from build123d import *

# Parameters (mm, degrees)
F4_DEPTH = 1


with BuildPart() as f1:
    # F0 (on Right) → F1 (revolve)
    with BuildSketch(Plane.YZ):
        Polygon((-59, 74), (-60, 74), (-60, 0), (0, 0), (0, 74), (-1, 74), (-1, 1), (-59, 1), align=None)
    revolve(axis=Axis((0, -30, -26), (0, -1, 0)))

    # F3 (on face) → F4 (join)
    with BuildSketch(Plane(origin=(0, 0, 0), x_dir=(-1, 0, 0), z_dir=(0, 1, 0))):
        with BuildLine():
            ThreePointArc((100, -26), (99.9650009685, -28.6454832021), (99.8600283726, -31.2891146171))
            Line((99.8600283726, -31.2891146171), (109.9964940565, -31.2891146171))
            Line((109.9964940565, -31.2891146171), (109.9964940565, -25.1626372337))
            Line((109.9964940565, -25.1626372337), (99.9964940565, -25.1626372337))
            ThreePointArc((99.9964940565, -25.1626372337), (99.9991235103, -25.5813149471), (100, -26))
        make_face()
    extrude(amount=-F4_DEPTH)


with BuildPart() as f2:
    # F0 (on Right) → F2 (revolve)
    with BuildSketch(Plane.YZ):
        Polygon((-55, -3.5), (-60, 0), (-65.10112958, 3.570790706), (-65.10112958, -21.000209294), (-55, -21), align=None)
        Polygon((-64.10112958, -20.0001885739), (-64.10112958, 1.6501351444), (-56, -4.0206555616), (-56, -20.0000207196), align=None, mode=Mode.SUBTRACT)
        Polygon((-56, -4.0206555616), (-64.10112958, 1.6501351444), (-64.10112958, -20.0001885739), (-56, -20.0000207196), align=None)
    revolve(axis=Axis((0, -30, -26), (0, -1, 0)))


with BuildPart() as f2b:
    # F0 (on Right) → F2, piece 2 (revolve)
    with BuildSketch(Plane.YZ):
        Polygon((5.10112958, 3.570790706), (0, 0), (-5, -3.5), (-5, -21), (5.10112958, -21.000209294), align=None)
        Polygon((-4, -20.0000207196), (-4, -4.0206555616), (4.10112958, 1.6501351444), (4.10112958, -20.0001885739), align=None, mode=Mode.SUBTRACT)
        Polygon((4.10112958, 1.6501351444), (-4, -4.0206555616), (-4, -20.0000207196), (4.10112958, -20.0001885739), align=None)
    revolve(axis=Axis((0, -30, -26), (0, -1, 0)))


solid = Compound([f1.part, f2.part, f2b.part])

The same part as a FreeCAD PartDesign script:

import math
import FreeCAD as App
import Part
import Sketcher

V = App.Vector
Q = App.Units.Quantity

doc = App.newDocument("Part")
body = doc.addObject("PartDesign::Body", "Body")

sketch1 = doc.addObject("Sketcher::SketchObject", "Sketch")
body.addObject(sketch1)
sketch1.AttachmentSupport = (doc.YZ_Plane, [""])
sketch1.MapMode = "FlatFace"
sketch1.addGeometry([
    Part.LineSegment(V(-59, 74, 0), V(-60, 74, 0)),
    Part.LineSegment(V(-60, 74, 0), V(-60, 0, 0)),
    Part.LineSegment(V(-60, 0, 0), V(0, 0, 0)),
    Part.LineSegment(V(0, 0, 0), V(0, 74, 0)),
    Part.LineSegment(V(0, 74, 0), V(-1, 74, 0)),
    Part.LineSegment(V(-1, 74, 0), V(-1, 1, 0)),
    Part.LineSegment(V(-1, 1, 0), V(-59, 1, 0)),
    Part.LineSegment(V(-59, 1, 0), V(-59, 74, 0)),
], False)
sketch1.addGeometry(Part.LineSegment(V(0, -26, 0), V(-60, -26, 0)), True)
sketch1.addConstraint([
    Sketcher.Constraint("Coincident", 0, 2, 1, 1),
    Sketcher.Constraint("Coincident", 1, 2, 2, 1),
    Sketcher.Constraint("Coincident", 2, 2, 3, 1),
    Sketcher.Constraint("Coincident", 3, 2, 4, 1),
    Sketcher.Constraint("Coincident", 4, 2, 5, 1),
    Sketcher.Constraint("Coincident", 5, 2, 6, 1),
    Sketcher.Constraint("Coincident", 6, 2, 7, 1),
    Sketcher.Constraint("Coincident", 7, 2, 0, 1),
    Sketcher.Constraint("Horizontal", 0),
    Sketcher.Constraint("Vertical", 1),
    Sketcher.Constraint("Horizontal", 2),
    Sketcher.Constraint("Vertical", 3),
    Sketcher.Constraint("Horizontal", 4),
    Sketcher.Constraint("Vertical", 5),
    Sketcher.Constraint("Horizontal", 6),
    Sketcher.Constraint("Vertical", 7),
    Sketcher.Constraint("Horizontal", 8),
    Sketcher.Constraint("Coincident", 2, 2, -1, 1),
    Sketcher.Constraint("PointOnObject", 8, 1, -2),
    Sketcher.Constraint("Horizontal", 0, 2, 3, 2),
    Sketcher.Constraint("Vertical", 1, 2, 8, 2),
    Sketcher.Constraint("Equal", 0, 4),
    Sketcher.Constraint("DistanceX", 0, 2, 0, 1, Q("1 mm")),
    Sketcher.Constraint("DistanceX", 2, 1, 2, 2, Q("60 mm")),
    Sketcher.Constraint("DistanceY", 1, 2, 1, 1, Q("74 mm")),
    Sketcher.Constraint("DistanceY", 5, 2, 5, 1, Q("73 mm")),
    Sketcher.Constraint("DistanceY", 8, 1, -1, 1, Q("26 mm")),
])
revolution = doc.addObject("PartDesign::Revolution", "Revolution")
body.addObject(revolution)
revolution.Profile = sketch1
revolution.ReferenceAxis = (sketch1, ["Axis0"])
revolution.Angle = 360

sketch2 = doc.addObject("Sketcher::SketchObject", "Sketch001")
body.addObject(sketch2)
sketch2.AttachmentSupport = (doc.XZ_Plane, [""])
sketch2.MapMode = "FlatFace"
sketch2.addGeometry([
    Part.ArcOfCircle(Part.Circle(V(0, -26, 0), V(0, 0, 1), 100), math.radians(180), math.radians(183.03)),
    Part.LineSegment(V(-99.9, -31.3, 0), V(-110, -31.3, 0)),
    Part.LineSegment(V(-110, -31.3, 0), V(-110, -25.2, 0)),
    Part.LineSegment(V(-110, -25.2, 0), V(-100, -25.2, 0)),
    Part.ArcOfCircle(Part.Circle(V(0, -26, 0), V(0, 0, 1), 100), math.radians(179.52), math.radians(180)),
], False)
sketch2.addConstraint([
    Sketcher.Constraint("Coincident", 0, 2, 1, 1),
    Sketcher.Constraint("Coincident", 1, 2, 2, 1),
    Sketcher.Constraint("Coincident", 2, 2, 3, 1),
    Sketcher.Constraint("Coincident", 3, 2, 4, 1),
    Sketcher.Constraint("Tangent", 4, 2, 0, 1),
    Sketcher.Constraint("Horizontal", 1),
    Sketcher.Constraint("Vertical", 2),
    Sketcher.Constraint("Horizontal", 3),
    Sketcher.Constraint("PointOnObject", 0, 3, -2),
    Sketcher.Constraint("Horizontal", 0, 3, 4, 2),
    Sketcher.Constraint("Radius", 0, Q("100 mm")),
    Sketcher.Constraint("DistanceX", 3, 1, 3, 2, Q("10 mm")),
    Sketcher.Constraint("DistanceY", 0, 3, -1, 1, Q("26 mm")),
    Sketcher.Constraint("Radius", 4, Q("99.999997 mm")),
    Sketcher.Constraint("DistanceX", 1, 2, 1, 1, Q("10.136466 mm")),
    Sketcher.Constraint("DistanceY", 2, 1, 2, 2, Q("6.126477 mm")),
])
pad1 = doc.addObject("PartDesign::Pad", "Pad")
body.addObject(pad1)
pad1.Profile = sketch2
pad1.Length = 1
body2 = doc.addObject("PartDesign::Body", "Body001")

sketch3 = doc.addObject("Sketcher::SketchObject", "Sketch002")
body2.addObject(sketch3)
sketch3.AttachmentSupport = (doc.getObject("YZ_Plane001"), [""])
sketch3.MapMode = "FlatFace"
sketch3.addGeometry([
    Part.LineSegment(V(-55, -4, 0), V(-65, 4, 0)),
    Part.LineSegment(V(-65, 4, 0), V(-65, -21, 0)),
    Part.LineSegment(V(-65, -21, 0), V(-55, -21, 0)),
    Part.LineSegment(V(-55, -21, 0), V(-55, -4, 0)),
], False)
sketch3.addGeometry(Part.LineSegment(V(-55, -26, 0), V(-65, -26, 0)), True)
sketch3.addConstraint([
    Sketcher.Constraint("Coincident", 0, 2, 1, 1),
    Sketcher.Constraint("Coincident", 1, 2, 2, 1),
    Sketcher.Constraint("Coincident", 2, 2, 3, 1),
    Sketcher.Constraint("Coincident", 3, 2, 0, 1),
    Sketcher.Constraint("Vertical", 1),
    Sketcher.Constraint("Vertical", 3),
    Sketcher.Constraint("Horizontal", 4),
    Sketcher.Constraint("Vertical", 3, 2, 4, 1),
    Sketcher.Constraint("Vertical", 1, 2, 4, 2),
    Sketcher.Constraint("DistanceY", 3, 1, 3, 2, Q("17.5 mm")),
    Sketcher.Constraint("DistanceX", 2, 2, -1, 1, Q("55 mm")),
    Sketcher.Constraint("DistanceY", 2, 2, -1, 1, Q("21 mm")),
    Sketcher.Constraint("DistanceY", 4, 1, -1, 1, Q("26 mm")),
    Sketcher.Constraint("Distance", 0, Q("12.33 mm")),
    Sketcher.Constraint("DistanceY", 1, 2, 1, 1, Q("24.571 mm")),
    Sketcher.Constraint("DistanceX", 4, 2, 4, 1, Q("10.10113 mm")),
])
revolution2 = doc.addObject("PartDesign::Revolution", "Revolution001")
body2.addObject(revolution2)
revolution2.Profile = sketch3
revolution2.ReferenceAxis = (sketch3, ["Axis0"])
revolution2.Angle = 360
body3 = doc.addObject("PartDesign::Body", "Body002")

sketch4 = doc.addObject("Sketcher::SketchObject", "Sketch003")
body3.addObject(sketch4)
sketch4.AttachmentSupport = (doc.getObject("YZ_Plane002"), [""])
sketch4.MapMode = "FlatFace"
sketch4.addGeometry([
    Part.LineSegment(V(5, 4, 0), V(-5, -4, 0)),
    Part.LineSegment(V(-5, -4, 0), V(-5, -21, 0)),
    Part.LineSegment(V(-5, -21, 0), V(5, -21, 0)),
    Part.LineSegment(V(5, -21, 0), V(5, 4, 0)),
], False)
sketch4.addGeometry(Part.LineSegment(V(5, -26, 0), V(-5, -26, 0)), True)
sketch4.addConstraint([
    Sketcher.Constraint("Coincident", 0, 2, 1, 1),
    Sketcher.Constraint("Coincident", 1, 2, 2, 1),
    Sketcher.Constraint("Coincident", 2, 2, 3, 1),
    Sketcher.Constraint("Coincident", 3, 2, 0, 1),
    Sketcher.Constraint("Vertical", 1),
    Sketcher.Constraint("Vertical", 3),
    Sketcher.Constraint("Horizontal", 4),
    Sketcher.Constraint("Vertical", 3, 2, 4, 1),
    Sketcher.Constraint("Vertical", 1, 2, 4, 2),
    Sketcher.Constraint("DistanceY", 1, 2, 1, 1, Q("17.5 mm")),
    Sketcher.Constraint("DistanceX", 0, 2, -1, 1, Q("5 mm")),
    Sketcher.Constraint("DistanceY", 1, 2, -1, 1, Q("21 mm")),
    Sketcher.Constraint("DistanceY", 4, 1, -1, 1, Q("26 mm")),
    Sketcher.Constraint("Distance", 0, Q("12.33 mm")),
    Sketcher.Constraint("DistanceY", 3, 1, 3, 2, Q("24.571 mm")),
    Sketcher.Constraint("DistanceX", 4, 2, 4, 1, Q("10.10113 mm")),
])
revolution3 = doc.addObject("PartDesign::Revolution", "Revolution002")
body3.addObject(revolution3)
revolution3.Profile = sketch4
revolution3.ReferenceAxis = (sketch4, ["Axis0"])
revolution3.Angle = 360

doc.recompute()
